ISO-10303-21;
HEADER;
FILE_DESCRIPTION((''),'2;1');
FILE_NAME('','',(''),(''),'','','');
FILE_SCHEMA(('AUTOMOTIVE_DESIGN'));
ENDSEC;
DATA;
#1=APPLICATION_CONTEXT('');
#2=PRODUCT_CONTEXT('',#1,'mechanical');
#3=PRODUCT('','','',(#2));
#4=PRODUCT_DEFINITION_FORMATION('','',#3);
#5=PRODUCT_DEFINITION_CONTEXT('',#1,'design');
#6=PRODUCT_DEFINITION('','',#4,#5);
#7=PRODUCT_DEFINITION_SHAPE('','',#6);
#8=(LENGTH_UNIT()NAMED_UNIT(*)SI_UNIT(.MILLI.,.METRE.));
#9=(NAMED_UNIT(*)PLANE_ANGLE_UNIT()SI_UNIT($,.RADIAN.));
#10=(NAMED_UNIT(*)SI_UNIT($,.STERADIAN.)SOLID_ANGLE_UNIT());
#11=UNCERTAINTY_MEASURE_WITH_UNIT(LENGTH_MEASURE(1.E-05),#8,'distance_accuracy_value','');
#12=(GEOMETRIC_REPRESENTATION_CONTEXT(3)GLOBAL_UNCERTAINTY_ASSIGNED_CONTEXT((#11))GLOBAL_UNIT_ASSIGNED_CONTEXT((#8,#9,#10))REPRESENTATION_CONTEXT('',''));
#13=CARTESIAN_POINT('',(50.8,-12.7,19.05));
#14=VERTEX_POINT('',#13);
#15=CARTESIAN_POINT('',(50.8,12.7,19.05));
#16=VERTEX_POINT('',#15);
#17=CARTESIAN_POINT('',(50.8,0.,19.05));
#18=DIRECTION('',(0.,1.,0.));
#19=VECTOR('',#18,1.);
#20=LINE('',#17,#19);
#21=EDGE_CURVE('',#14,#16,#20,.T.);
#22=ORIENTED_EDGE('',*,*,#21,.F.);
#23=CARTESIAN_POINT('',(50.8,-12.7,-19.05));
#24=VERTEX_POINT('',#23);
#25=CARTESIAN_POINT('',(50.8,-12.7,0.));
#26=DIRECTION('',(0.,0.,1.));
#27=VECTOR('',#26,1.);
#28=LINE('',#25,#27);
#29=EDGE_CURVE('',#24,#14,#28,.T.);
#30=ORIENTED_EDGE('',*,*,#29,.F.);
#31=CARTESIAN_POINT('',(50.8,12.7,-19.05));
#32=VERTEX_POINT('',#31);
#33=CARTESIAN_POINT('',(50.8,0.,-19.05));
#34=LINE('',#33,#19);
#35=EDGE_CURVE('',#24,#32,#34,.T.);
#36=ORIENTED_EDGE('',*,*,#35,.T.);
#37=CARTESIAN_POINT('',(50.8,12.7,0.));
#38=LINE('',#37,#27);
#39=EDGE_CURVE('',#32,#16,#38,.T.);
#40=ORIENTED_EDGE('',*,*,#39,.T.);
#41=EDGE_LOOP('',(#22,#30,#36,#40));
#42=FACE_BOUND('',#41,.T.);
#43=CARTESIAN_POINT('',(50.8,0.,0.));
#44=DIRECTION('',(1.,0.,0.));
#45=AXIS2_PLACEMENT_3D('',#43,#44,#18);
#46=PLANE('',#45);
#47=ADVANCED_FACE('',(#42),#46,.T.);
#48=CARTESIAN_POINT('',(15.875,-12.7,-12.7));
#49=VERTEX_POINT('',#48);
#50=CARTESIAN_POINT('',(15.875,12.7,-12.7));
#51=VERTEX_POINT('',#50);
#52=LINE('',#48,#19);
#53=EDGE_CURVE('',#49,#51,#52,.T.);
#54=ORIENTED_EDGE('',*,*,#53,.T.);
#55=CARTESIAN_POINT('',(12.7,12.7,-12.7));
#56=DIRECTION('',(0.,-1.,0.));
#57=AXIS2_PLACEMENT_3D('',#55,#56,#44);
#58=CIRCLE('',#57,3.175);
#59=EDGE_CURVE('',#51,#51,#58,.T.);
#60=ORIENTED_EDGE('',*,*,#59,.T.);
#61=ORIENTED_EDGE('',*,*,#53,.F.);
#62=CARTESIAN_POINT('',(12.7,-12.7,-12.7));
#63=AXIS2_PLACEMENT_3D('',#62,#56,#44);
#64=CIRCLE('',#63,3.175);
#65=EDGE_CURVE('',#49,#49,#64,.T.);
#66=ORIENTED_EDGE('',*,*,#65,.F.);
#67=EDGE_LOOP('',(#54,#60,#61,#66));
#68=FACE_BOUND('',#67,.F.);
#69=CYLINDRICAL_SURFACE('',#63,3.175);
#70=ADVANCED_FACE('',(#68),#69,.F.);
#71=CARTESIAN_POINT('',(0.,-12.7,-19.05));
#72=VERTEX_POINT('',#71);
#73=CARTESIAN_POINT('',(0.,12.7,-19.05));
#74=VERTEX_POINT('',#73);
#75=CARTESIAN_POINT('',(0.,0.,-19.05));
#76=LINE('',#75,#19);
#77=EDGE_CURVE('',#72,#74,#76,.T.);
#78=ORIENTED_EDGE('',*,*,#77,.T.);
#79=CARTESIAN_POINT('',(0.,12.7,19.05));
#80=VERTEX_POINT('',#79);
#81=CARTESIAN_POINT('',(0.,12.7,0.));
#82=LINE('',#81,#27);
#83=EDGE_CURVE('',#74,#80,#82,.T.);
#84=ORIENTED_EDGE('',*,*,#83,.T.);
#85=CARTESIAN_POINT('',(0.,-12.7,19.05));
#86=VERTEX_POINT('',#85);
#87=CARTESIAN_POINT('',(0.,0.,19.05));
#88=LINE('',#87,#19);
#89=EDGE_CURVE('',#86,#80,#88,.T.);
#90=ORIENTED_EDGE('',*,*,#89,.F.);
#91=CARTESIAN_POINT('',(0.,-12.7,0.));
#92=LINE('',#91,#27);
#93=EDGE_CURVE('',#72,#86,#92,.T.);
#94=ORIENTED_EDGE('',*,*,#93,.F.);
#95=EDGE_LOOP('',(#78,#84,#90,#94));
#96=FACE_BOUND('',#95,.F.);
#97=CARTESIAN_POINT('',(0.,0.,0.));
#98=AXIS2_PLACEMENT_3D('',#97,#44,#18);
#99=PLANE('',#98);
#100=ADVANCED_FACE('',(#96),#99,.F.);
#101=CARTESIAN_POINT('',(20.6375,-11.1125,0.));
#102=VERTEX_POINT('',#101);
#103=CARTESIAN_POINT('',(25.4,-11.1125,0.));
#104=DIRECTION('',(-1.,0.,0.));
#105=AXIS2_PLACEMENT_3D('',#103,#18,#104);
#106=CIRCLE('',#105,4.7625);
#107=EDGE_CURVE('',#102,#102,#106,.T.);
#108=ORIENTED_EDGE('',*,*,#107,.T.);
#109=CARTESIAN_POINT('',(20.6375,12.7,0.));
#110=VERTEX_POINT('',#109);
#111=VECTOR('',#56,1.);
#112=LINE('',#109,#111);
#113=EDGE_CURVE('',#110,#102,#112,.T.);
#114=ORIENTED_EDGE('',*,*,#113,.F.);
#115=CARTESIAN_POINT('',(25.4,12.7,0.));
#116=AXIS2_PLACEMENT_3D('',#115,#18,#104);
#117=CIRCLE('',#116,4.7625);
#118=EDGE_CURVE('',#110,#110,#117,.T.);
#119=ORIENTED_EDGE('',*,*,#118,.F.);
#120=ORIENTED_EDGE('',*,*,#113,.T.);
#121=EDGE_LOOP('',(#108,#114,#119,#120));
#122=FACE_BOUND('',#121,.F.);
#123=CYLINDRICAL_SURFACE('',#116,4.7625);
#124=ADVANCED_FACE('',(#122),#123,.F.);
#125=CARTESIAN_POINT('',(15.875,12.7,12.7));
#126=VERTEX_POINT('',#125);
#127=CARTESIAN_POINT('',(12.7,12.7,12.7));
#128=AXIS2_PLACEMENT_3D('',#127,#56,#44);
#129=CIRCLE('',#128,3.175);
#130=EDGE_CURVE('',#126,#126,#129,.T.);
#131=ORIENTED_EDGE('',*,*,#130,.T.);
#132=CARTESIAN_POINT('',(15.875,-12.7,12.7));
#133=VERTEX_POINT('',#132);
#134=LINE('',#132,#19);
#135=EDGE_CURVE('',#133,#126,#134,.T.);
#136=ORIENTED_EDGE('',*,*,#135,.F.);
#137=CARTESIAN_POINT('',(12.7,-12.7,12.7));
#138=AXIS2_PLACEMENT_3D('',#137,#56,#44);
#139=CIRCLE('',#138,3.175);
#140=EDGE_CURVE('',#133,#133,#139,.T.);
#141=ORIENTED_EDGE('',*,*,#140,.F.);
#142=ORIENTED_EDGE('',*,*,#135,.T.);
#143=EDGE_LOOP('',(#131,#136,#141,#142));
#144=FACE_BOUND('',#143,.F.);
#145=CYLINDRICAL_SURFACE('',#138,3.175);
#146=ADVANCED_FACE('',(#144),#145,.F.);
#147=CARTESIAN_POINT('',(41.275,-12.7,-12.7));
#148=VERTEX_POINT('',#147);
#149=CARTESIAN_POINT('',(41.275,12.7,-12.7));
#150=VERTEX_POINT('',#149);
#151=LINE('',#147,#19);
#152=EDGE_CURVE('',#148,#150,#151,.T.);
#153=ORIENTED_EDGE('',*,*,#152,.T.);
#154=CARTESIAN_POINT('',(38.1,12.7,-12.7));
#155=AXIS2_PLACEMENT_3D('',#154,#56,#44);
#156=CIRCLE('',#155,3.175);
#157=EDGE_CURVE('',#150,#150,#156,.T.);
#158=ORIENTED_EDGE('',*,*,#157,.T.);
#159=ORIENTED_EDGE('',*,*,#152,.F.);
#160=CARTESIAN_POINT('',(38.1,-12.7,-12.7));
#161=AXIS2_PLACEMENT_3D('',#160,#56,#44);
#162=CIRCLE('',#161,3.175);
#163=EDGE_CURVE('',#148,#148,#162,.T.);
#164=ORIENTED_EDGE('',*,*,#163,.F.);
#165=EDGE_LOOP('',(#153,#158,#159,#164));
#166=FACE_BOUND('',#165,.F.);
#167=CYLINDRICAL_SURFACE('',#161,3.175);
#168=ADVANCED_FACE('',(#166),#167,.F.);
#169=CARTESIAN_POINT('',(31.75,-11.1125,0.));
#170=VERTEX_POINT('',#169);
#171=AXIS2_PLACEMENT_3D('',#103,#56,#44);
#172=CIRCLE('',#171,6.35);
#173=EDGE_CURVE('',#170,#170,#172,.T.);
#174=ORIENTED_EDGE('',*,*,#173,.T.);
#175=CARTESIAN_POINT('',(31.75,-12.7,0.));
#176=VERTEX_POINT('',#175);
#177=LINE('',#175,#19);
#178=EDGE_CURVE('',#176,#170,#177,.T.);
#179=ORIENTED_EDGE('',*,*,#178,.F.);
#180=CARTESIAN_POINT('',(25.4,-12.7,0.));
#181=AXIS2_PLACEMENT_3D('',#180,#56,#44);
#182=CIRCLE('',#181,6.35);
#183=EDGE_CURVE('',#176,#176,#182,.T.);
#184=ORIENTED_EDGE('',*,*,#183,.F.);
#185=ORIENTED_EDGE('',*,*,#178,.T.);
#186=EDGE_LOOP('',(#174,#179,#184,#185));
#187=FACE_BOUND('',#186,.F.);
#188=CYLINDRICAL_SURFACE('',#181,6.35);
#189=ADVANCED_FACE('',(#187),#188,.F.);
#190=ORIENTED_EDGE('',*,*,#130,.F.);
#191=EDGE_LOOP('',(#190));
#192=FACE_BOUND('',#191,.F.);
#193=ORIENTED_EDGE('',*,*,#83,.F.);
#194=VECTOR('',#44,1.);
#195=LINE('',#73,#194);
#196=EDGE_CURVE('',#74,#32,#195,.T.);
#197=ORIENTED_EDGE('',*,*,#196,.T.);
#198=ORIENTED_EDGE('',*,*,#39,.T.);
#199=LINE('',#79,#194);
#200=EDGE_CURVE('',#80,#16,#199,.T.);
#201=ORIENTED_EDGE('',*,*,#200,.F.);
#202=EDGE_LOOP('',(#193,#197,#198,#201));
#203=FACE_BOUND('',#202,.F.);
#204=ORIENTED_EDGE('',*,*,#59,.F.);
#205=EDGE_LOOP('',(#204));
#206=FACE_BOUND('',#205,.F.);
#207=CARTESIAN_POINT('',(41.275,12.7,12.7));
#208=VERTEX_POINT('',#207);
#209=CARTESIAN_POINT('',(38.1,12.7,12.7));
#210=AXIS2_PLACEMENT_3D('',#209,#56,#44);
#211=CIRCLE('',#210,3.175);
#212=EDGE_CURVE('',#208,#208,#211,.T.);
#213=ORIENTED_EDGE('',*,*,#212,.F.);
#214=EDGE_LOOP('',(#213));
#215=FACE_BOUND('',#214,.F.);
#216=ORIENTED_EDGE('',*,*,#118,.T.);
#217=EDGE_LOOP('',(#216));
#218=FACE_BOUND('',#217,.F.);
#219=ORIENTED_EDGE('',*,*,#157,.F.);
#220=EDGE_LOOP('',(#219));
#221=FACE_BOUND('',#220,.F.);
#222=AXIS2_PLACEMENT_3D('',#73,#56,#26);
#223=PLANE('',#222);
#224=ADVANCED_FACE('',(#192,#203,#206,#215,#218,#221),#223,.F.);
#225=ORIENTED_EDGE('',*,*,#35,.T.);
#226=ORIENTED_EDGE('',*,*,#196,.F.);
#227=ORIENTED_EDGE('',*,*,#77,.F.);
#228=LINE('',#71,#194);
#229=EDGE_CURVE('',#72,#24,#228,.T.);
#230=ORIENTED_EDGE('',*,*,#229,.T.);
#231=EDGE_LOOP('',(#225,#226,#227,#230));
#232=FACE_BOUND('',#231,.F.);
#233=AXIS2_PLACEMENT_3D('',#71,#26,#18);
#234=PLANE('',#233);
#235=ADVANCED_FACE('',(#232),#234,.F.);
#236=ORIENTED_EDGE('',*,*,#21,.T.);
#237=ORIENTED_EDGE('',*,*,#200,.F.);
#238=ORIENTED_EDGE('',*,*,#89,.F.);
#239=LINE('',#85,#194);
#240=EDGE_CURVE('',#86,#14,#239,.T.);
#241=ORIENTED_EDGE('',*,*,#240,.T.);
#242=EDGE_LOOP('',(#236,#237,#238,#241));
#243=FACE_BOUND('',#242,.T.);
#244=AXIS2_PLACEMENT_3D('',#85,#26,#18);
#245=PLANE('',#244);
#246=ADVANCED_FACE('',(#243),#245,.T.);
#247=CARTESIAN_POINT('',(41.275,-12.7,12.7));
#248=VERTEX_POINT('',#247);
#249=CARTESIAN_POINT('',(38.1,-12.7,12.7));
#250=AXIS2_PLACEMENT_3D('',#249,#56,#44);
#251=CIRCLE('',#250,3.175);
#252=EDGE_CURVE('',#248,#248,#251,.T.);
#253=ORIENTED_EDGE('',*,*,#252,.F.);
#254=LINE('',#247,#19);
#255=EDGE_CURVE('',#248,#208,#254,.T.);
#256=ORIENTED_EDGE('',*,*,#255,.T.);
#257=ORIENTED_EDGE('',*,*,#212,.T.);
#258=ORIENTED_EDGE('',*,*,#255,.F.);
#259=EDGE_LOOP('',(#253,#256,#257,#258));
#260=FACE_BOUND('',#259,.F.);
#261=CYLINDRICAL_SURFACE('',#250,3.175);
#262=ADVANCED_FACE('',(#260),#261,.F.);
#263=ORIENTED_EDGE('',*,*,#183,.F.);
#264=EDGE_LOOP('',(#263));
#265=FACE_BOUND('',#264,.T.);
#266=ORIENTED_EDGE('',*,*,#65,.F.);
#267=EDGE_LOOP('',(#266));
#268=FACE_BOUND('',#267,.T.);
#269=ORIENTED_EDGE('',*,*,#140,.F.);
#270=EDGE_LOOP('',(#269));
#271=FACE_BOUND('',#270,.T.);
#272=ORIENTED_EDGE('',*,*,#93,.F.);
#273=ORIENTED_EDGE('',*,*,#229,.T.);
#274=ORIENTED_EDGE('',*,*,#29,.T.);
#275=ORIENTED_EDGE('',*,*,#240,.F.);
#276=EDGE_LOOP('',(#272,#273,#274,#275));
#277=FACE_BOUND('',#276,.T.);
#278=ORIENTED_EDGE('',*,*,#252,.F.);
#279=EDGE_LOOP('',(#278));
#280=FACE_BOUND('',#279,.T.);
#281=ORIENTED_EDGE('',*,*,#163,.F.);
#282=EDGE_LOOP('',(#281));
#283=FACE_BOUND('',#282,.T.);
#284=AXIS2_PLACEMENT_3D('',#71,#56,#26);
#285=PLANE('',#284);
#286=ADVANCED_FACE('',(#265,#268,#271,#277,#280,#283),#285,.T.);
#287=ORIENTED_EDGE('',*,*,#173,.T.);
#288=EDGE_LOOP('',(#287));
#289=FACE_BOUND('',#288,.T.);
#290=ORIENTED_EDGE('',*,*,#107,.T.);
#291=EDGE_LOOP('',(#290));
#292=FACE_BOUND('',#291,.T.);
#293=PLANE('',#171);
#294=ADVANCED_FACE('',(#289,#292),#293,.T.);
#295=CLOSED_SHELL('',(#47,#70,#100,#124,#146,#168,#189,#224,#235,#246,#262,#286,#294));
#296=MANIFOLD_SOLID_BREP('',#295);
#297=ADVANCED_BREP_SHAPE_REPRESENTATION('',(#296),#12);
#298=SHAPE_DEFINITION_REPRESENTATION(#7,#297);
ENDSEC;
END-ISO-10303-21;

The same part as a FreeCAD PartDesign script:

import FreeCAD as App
import Part
import Sketcher

V = App.Vector
Q = App.Units.Quantity

doc = App.newDocument("Part")
body = doc.addObject("PartDesign::Body", "Body")

# Sketch on YZ plane
sketch1 = body.newObject("Sketcher::SketchObject", "Sketch")
sketch1.AttachmentSupport = (doc.getObject("YZ_Plane"), [""])
sketch1.MapMode = "FlatFace"
sketch1.addGeometry([
    Part.LineSegment(V(-12.7, 19.05, 0), V(-12.7, -19.05, 0)),
    Part.LineSegment(V(-12.7, -19.05, 0), V(12.7, -19.05, 0)),
    Part.LineSegment(V(12.7, -19.05, 0), V(12.7, 19.05, 0)),
    Part.LineSegment(V(12.7, 19.05, 0), V(-12.7, 19.05, 0)),
], False)
sketch1.addConstraint([
    Sketcher.Constraint("Coincident", 0, 2, 1, 1),
    Sketcher.Constraint("Coincident", 1, 2, 2, 1),
    Sketcher.Constraint("Coincident", 2, 2, 3, 1),
    Sketcher.Constraint("Coincident", 3, 2, 0, 1),
    Sketcher.Constraint("Vertical", 0),
    Sketcher.Constraint("Horizontal", 1),
    Sketcher.Constraint("Vertical", 2),
    Sketcher.Constraint("Horizontal", 3),
    Sketcher.Constraint("Symmetric", 0, 2, 2, 2, -1, 1),
    Sketcher.Constraint("DistanceX", 1, 1, 1, 2, Q("1 in")),
    Sketcher.Constraint("DistanceY", 0, 2, 0, 1, Q("1.5 in")),
])
pad1 = body.newObject("PartDesign::Pad", "Pad")
pad1.Profile = sketch1
pad1.Length = Q("2 in")

# Sketch on XZ plane
sketch2 = body.newObject("Sketcher::SketchObject", "Sketch001")
sketch2.AttachmentSupport = (doc.getObject("XZ_Plane"), [""])
sketch2.MapMode = "FlatFace"
sketch2.AttachmentOffset = App.Placement(V(0, 0, 0.5 * 25.4), App.Rotation())
sketch2.addGeometry([
    Part.Circle(V(12.7, 12.7, 0), V(0, 0, 1), 3.175),
    Part.Circle(V(38.1, -12.7, 0), V(0, 0, 1), 3.175),
    Part.Circle(V(38.1, 12.7, 0), V(0, 0, 1), 3.175),
    Part.Circle(V(12.7, -12.7, 0), V(0, 0, 1), 3.175),
], False)
sketch2.addConstraint([
    Sketcher.Constraint("Equal", 0, 1),
    Sketcher.Constraint("Equal", 1, 2),
    Sketcher.Constraint("Equal", 2, 3),
    Sketcher.Constraint("Symmetric", 1, 3, 2, 3, -1),
    Sketcher.Constraint("Symmetric", 0, 3, 3, 3, -1),
    Sketcher.Constraint("Horizontal", 0, 3, 2, 3),
    Sketcher.Constraint("Diameter", 0, Q("0.25 in")),
    Sketcher.Constraint("DistanceX", 0, 3, 1, 3, Q("1 in")),
    Sketcher.Constraint("DistanceY", 1, 3, 0, 3, Q("1 in")),
    Sketcher.Constraint("DistanceX", -1, 1, 0, 3, Q("0.5 in")),
])
pocket1 = body.newObject("PartDesign::Pocket", "Pocket")
pocket1.Profile = sketch2
pocket1.Length = Q("1 in")

# Sketch on XZ plane
sketch3 = body.newObject("Sketcher::SketchObject", "Sketch002")
sketch3.AttachmentSupport = (doc.getObject("XZ_Plane"), [""])
sketch3.MapMode = "FlatFace"
sketch3.AttachmentOffset = App.Placement(V(0, 0, 0.5 * 25.4), App.Rotation())
sketch3.addGeometry(Part.Circle(V(25.4, 0, 0), V(0, 0, 1), 6.35), False)
sketch3.addConstraint([
    Sketcher.Constraint("PointOnObject", 0, 3, -1),
    Sketcher.Constraint("Diameter", 0, Q("0.5 in")),
    Sketcher.Constraint("DistanceX", -1, 1, 0, 3, Q("1 in")),
])
pocket2 = body.newObject("PartDesign::Pocket", "Pocket001")
pocket2.Profile = sketch3
pocket2.Length = Q("0.0625 in")

# Sketch on XZ plane
sketch4 = body.newObject("Sketcher::SketchObject", "Sketch003")
sketch4.AttachmentSupport = (doc.getObject("XZ_Plane"), [""])
sketch4.MapMode = "FlatFace"
sketch4.AttachmentOffset = App.Placement(V(0, 0, -0.5 * 25.4), App.Rotation())
sketch4.addGeometry(Part.Circle(V(25.4, 0, 0), V(0, 0, 1), 4.7625), False)
sketch4.addConstraint([
    Sketcher.Constraint("PointOnObject", 0, 3, -1),
    Sketcher.Constraint("Diameter", 0, Q("0.375 in")),
    Sketcher.Constraint("DistanceX", -1, 1, 0, 3, Q("1 in")),
])
pocket3 = body.newObject("PartDesign::Pocket", "Pocket002")
pocket3.Profile = sketch4
pocket3.Length = Q("1 in")
pocket3.Reversed = True

doc.recompute()
